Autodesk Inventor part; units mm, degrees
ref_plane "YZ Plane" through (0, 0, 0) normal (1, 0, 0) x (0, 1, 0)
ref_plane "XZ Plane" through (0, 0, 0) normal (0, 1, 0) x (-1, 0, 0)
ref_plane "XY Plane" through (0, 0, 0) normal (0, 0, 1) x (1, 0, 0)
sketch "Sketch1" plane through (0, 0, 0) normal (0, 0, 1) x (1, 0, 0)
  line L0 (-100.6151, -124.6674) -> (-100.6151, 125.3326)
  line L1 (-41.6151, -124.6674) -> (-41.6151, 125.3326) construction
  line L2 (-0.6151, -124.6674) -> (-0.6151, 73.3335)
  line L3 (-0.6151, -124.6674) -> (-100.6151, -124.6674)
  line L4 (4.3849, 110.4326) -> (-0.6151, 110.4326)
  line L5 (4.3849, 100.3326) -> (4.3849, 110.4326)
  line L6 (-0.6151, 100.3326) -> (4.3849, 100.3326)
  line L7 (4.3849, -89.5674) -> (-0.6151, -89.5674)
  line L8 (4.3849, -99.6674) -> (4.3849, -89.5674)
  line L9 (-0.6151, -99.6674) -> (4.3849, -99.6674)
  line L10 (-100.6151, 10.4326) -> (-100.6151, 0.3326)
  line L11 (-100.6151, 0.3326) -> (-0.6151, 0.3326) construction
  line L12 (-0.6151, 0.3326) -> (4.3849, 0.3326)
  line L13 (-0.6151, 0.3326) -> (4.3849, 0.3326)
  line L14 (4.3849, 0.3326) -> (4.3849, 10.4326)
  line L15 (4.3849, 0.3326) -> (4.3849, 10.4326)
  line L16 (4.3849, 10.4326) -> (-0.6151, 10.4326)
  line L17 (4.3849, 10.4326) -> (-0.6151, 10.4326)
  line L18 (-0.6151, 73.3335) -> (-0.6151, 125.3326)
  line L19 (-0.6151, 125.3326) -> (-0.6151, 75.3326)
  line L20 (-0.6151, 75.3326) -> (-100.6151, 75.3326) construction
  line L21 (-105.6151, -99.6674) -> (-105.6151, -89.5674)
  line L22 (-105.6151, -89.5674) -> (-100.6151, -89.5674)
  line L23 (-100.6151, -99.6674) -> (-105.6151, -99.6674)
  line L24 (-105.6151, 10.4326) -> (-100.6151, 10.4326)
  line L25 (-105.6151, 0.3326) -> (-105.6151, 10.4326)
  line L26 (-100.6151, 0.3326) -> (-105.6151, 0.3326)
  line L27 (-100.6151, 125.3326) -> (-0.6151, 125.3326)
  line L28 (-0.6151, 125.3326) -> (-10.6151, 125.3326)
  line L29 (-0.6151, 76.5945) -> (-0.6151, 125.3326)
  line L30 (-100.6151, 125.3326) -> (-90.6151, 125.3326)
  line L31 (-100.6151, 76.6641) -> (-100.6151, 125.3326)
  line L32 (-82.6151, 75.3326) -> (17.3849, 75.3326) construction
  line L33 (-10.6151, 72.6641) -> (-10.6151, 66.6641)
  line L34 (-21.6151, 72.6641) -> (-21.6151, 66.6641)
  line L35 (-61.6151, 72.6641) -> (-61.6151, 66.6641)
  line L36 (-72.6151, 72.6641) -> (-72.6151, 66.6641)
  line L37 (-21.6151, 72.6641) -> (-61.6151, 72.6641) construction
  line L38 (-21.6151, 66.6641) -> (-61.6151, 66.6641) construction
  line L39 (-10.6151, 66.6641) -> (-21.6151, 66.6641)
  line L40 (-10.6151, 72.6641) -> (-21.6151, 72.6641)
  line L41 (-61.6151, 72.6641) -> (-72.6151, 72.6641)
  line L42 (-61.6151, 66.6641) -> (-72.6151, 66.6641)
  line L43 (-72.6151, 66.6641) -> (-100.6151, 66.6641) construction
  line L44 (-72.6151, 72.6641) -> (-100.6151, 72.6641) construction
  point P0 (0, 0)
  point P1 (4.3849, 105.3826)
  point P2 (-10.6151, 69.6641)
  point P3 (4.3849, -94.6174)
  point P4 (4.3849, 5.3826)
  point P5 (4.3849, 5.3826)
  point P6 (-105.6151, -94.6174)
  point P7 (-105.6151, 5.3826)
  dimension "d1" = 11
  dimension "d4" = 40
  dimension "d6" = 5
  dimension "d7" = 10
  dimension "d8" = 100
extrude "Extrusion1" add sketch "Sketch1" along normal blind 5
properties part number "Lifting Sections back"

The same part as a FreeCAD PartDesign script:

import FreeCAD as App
import Part
import Sketcher


def add_polygon(sketch, points):
    """Adds a closed chain of lines whose ends are joined by coincident constraints."""
    first, n = sketch.GeometryCount, len(points)
    for a, b in zip(points, points[1:] + points[:1]):
        sketch.addGeometry(Part.LineSegment(App.Vector(*a, 0), App.Vector(*b, 0)), False)
    for i in range(n):
        sketch.addConstraint(Sketcher.Constraint("Coincident", first + i, 2, first + (i + 1) % n, 1))

doc = App.newDocument("Part")
params = doc.addObject("Spreadsheet::Sheet", "Params")
for row, (alias, value) in enumerate([
    ("sketch1_width", "100 mm"),
    ("sketch1_width2", "5 mm"),
    ("sketch1_width3", "11 mm"),
    ("sketch1_height", "25 mm"),
    ("sketch1_height2", "6 mm"),
    ("pad1_length", "5 mm"),
], start=1):
    params.set(f"A{row}", alias)
    params.set(f"B{row}", "=" + value)
    params.setAlias(f"B{row}", alias)

body = doc.addObject("PartDesign::Body", "Body")

# Sketch on XY plane
sketch1 = body.newObject("Sketcher::SketchObject", "Sketch")
sketch1.AttachmentSupport = (doc.getObject("XY_Plane"), [""])
sketch1.MapMode = "FlatFace"
add_polygon(sketch1, [(-101, -100), (-101, -125), (-1, -125), (-1, -100), (4, -100), (4, -90), (-1, -90), (-1, 0), (4, 0), (4, 10), (-1, 10), (-1, 100), (4, 100), (4, 110), (-1, 110), (-1, 125), (-101, 125), (-101, 10), (-106, 10), (-106, 0), (-101, 0), (-101, -90), (-106, -90), (-106, -100)])  # lines 0-23
add_polygon(sketch1, [(-73, 73), (-62, 73), (-62, 67), (-73, 67)])  # lines 24-27
add_polygon(sketch1, [(-22, 73), (-11, 73), (-11, 67), (-22, 67)])  # lines 28-31
sketch1.addConstraint(Sketcher.Constraint("Vertical", 0))
sketch1.addConstraint(Sketcher.Constraint("Horizontal", 1))
sketch1.addConstraint(Sketcher.Constraint("Vertical", 2))
sketch1.addConstraint(Sketcher.Constraint("Horizontal", 3))
sketch1.addConstraint(Sketcher.Constraint("Vertical", 4))
sketch1.addConstraint(Sketcher.Constraint("Horizontal", 5))
sketch1.addConstraint(Sketcher.Constraint("Vertical", 6))
sketch1.addConstraint(Sketcher.Constraint("Horizontal", 7))
sketch1.addConstraint(Sketcher.Constraint("Vertical", 8))
sketch1.addConstraint(Sketcher.Constraint("Horizontal", 9))
sketch1.addConstraint(Sketcher.Constraint("Vertical", 10))
sketch1.addConstraint(Sketcher.Constraint("Horizontal", 11))
sketch1.addConstraint(Sketcher.Constraint("Vertical", 12))
sketch1.addConstraint(Sketcher.Constraint("Horizontal", 13))
sketch1.addConstraint(Sketcher.Constraint("Vertical", 14))
sketch1.addConstraint(Sketcher.Constraint("Horizontal", 15))
sketch1.addConstraint(Sketcher.Constraint("Vertical", 16))
sketch1.addConstraint(Sketcher.Constraint("Horizontal", 17))
sketch1.addConstraint(Sketcher.Constraint("Vertical", 18))
sketch1.addConstraint(Sketcher.Constraint("Horizontal", 19))
sketch1.addConstraint(Sketcher.Constraint("Vertical", 20))
sketch1.addConstraint(Sketcher.Constraint("Horizontal", 21))
sketch1.addConstraint(Sketcher.Constraint("Vertical", 22))
sketch1.addConstraint(Sketcher.Constraint("Horizontal", 23))
sketch1.addConstraint(Sketcher.Constraint("Horizontal", 24))
sketch1.addConstraint(Sketcher.Constraint("Vertical", 25))
sketch1.addConstraint(Sketcher.Constraint("Horizontal", 26))
sketch1.addConstraint(Sketcher.Constraint("Vertical", 27))
sketch1.addConstraint(Sketcher.Constraint("Horizontal", 28))
sketch1.addConstraint(Sketcher.Constraint("Vertical", 29))
sketch1.addConstraint(Sketcher.Constraint("Horizontal", 30))
sketch1.addConstraint(Sketcher.Constraint("Vertical", 31))
sketch1.addConstraint(Sketcher.Constraint("Horizontal", 9, 2, 16, 2))
sketch1.addConstraint(Sketcher.Constraint("Horizontal", 7, 2, 18, 2))
sketch1.addConstraint(Sketcher.Constraint("Horizontal", 5, 2, 20, 2))
sketch1.addConstraint(Sketcher.Constraint("Horizontal", 3, 2, 22, 2))
sketch1.addConstraint(Sketcher.Constraint("Horizontal", 27, 2, 28, 2))
sketch1.addConstraint(Sketcher.Constraint("Horizontal", 26, 2, 29, 2))
sketch1.addConstraint(Sketcher.Constraint("Vertical", 2, 2, 5, 2))
sketch1.addConstraint(Sketcher.Constraint("Vertical", 4, 2, 7, 2))
sketch1.addConstraint(Sketcher.Constraint("Vertical", 6, 2, 9, 2))
sketch1.addConstraint(Sketcher.Constraint("Vertical", 8, 2, 11, 2))
sketch1.addConstraint(Sketcher.Constraint("Vertical", 10, 2, 13, 2))
sketch1.addConstraint(Sketcher.Constraint("Vertical", 0, 2, 15, 2))
sketch1.addConstraint(Sketcher.Constraint("Vertical", 16, 2, 19, 2))
sketch1.addConstraint(Sketcher.Constraint("Vertical", 18, 2, 21, 2))
sketch1.addConstraint(Sketcher.Constraint("Equal", 13, 17))
sketch1.addConstraint(Sketcher.Constraint("Equal", 26, 28))
sketch1.addConstraint(Sketcher.Constraint("Equal", 4, 8))
sketch1.addConstraint(Sketcher.Constraint("Equal", 6, 10))
sketch1.addConstraint(Sketcher.Constraint("Equal", 8, 12))
sketch1.addConstraint(Sketcher.Constraint("DistanceX", 1, 1, 1, 2, 100.0))
sketch1.addConstraint(Sketcher.Constraint("DistanceX", 3, 1, 3, 2, 5.0))
sketch1.addConstraint(Sketcher.Constraint("DistanceX", 24, 1, 24, 2, 11.0))
sketch1.addConstraint(Sketcher.Constraint("DistanceY", 2, 2, 6, 2, 100.0))
sketch1.addConstraint(Sketcher.Constraint("DistanceX", 28, 2, 10, 2, 10.0))
sketch1.addConstraint(Sketcher.Constraint("DistanceX", 25, 2, 30, 2, 40.0))
sketch1.addConstraint(Sketcher.Constraint("DistanceY", 0, 2, 0, 1, 25.0))
sketch1.addConstraint(Sketcher.Constraint("DistanceY", 25, 2, 25, 1, 6.0))
sketch1.addConstraint(Sketcher.Constraint("DistanceY", 4, 1, 4, 2, 10.1))
sketch1.addConstraint(Sketcher.Constraint("DistanceY", 14, 1, 14, 2, 14.9))
sketch1.addConstraint(Sketcher.Constraint("DistanceX", 0, 2, -1, 1, 100.615))
sketch1.addConstraint(Sketcher.Constraint("DistanceY", -1, 1, 24, 2, 72.664))
sketch1.addConstraint(Sketcher.Constraint("DistanceY", 0, 2, -1, 1, 124.6674))
sketch1.setExpression("Constraints[83]", "Params.sketch1_width")
sketch1.setExpression("Constraints[84]", "Params.sketch1_width2")
sketch1.setExpression("Constraints[85]", "Params.sketch1_width3")
sketch1.setExpression("Constraints[89]", "Params.sketch1_height")
sketch1.setExpression("Constraints[90]", "Params.sketch1_height2")
pad1 = body.newObject("PartDesign::Pad", "Pad")
pad1.Profile = sketch1
pad1.setExpression("Length", "Params.pad1_length")

doc.recompute()
